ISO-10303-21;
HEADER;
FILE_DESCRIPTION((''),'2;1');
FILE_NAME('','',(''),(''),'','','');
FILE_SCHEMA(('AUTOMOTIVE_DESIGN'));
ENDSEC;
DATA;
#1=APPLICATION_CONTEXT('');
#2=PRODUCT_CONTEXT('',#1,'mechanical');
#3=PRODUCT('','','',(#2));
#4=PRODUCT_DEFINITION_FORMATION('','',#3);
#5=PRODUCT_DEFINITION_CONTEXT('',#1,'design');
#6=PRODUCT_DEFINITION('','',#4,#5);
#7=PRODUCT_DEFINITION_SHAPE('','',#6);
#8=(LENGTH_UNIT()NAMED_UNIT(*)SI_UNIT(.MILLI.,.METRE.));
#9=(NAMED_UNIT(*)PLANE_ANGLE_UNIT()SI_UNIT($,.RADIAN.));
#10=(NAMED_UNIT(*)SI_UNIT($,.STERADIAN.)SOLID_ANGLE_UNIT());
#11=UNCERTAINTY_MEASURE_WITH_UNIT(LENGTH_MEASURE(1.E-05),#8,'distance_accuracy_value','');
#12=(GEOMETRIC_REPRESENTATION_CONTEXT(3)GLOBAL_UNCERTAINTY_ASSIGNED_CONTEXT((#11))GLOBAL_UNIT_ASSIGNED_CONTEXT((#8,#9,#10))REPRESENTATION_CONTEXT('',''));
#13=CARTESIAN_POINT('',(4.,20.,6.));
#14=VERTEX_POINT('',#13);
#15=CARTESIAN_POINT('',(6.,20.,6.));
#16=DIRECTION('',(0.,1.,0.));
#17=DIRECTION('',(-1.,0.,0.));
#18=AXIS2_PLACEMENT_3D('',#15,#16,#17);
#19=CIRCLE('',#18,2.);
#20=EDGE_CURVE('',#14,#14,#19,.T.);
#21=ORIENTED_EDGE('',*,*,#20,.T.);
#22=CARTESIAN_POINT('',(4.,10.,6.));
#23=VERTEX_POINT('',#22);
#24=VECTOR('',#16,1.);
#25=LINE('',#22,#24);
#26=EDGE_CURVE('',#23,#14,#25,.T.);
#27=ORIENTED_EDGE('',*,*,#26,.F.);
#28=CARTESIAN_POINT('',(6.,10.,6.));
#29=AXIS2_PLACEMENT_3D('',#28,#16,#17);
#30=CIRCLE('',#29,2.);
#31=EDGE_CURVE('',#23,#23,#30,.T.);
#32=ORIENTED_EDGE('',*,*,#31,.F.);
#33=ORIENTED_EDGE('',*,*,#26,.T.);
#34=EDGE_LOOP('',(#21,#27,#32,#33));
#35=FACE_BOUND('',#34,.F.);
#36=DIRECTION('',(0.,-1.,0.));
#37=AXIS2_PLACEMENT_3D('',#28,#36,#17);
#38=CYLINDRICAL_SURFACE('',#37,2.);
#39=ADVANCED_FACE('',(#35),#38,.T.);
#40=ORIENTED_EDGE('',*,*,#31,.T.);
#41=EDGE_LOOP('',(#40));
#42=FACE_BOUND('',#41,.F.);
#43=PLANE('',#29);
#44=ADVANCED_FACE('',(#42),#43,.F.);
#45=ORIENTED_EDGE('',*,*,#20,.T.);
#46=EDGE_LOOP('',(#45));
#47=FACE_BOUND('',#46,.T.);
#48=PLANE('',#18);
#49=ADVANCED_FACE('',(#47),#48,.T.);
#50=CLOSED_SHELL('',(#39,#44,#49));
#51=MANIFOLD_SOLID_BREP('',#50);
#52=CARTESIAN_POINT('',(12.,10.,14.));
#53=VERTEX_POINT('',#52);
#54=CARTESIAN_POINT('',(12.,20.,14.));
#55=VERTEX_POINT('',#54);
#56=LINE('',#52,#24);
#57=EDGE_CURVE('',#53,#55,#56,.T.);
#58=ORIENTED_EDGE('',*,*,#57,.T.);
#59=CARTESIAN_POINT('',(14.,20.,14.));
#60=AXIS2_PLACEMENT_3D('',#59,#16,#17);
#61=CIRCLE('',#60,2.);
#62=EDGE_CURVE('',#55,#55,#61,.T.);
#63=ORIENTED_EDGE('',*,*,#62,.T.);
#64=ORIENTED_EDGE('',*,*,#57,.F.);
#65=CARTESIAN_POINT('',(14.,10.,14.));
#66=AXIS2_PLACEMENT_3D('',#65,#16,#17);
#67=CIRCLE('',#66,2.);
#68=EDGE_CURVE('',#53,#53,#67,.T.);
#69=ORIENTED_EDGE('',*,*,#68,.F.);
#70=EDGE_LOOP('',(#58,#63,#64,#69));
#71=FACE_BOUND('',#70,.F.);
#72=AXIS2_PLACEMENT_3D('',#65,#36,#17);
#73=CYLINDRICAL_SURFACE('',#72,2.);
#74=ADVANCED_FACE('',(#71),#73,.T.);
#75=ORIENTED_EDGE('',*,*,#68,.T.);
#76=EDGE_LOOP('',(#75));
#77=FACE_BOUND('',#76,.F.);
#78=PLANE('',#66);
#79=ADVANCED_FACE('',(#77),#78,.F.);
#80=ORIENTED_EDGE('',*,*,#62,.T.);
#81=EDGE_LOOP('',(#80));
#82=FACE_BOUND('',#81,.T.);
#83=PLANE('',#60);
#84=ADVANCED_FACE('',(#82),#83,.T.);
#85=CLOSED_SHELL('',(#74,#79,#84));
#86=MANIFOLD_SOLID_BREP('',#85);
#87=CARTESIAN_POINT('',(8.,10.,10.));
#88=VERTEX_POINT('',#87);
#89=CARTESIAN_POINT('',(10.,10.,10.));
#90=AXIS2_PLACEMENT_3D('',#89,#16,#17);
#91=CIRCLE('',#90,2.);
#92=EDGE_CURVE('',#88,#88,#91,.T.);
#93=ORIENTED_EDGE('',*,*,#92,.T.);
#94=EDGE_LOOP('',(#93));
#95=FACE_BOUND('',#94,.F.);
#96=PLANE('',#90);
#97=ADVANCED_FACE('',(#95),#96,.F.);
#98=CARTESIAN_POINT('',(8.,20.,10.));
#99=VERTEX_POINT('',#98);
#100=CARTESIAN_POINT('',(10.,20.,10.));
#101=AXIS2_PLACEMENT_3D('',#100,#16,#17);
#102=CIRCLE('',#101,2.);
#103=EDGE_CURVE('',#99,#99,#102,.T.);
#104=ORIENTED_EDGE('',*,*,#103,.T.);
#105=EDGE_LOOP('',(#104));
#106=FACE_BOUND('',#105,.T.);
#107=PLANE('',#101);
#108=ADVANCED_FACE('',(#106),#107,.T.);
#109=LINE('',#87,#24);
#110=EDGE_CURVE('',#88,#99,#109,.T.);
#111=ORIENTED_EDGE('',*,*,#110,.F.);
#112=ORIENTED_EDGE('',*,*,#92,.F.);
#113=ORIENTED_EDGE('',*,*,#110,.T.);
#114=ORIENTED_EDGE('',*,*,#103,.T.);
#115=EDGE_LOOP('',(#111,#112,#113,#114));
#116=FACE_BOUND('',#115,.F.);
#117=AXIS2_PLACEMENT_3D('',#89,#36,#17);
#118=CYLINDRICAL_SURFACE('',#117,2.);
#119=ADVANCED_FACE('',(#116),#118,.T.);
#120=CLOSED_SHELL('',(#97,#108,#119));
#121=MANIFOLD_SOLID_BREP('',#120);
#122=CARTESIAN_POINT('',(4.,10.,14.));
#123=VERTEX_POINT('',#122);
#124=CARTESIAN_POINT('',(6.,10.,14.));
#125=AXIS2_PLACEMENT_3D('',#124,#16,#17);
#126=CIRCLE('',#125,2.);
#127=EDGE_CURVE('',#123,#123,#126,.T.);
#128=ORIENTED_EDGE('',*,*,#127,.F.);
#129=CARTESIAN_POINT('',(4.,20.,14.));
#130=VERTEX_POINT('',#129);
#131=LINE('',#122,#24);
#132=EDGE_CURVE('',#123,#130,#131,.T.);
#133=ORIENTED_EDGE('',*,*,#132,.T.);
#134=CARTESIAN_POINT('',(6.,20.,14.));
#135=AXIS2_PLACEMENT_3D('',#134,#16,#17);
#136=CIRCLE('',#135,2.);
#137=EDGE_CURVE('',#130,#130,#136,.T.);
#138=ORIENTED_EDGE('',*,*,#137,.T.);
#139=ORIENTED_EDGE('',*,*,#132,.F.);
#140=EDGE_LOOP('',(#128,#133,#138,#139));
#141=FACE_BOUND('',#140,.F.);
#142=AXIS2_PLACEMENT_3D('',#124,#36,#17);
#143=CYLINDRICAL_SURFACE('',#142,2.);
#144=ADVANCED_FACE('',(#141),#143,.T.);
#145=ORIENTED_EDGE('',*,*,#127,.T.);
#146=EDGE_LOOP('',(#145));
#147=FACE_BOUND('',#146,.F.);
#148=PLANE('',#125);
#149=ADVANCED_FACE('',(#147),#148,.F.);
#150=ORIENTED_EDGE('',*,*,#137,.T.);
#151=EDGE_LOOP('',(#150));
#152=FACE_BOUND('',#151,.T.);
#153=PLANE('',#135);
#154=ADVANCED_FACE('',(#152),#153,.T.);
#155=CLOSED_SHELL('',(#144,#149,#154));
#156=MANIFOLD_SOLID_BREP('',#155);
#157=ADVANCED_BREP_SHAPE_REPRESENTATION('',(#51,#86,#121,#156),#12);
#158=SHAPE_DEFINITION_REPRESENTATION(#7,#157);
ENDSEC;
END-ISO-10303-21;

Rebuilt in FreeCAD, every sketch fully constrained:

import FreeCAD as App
import Part
import Sketcher

doc = App.newDocument("Part")
body = doc.addObject("PartDesign::Body", "Body")

# Sketch on XZ plane
sketch1 = body.newObject("Sketcher::SketchObject", "Sketch")
sketch1.AttachmentSupport = (doc.getObject("XZ_Plane"), [""])
sketch1.MapMode = "FlatFace"
sketch1.AttachmentOffset = App.Placement(App.Vector(0, 0, -10), App.Rotation())
sketch1.addGeometry(Part.Circle(App.Vector(14, 14, 0), App.Vector(0, 0, 1), 2), False)
sketch1.addConstraint([
    Sketcher.Constraint("Diameter", 0, 4.0),
    Sketcher.Constraint("DistanceX", -1, 1, 0, 3, 14.0),
    Sketcher.Constraint("DistanceY", -1, 1, 0, 3, 14.0),
])
pad1 = body.newObject("PartDesign::Pad", "Pad")
pad1.Profile = sketch1
pad1.Length = 10
pad1.Reversed = True
body2 = doc.addObject("PartDesign::Body", "Body001")

# Sketch on XZ plane
sketch2 = body2.newObject("Sketcher::SketchObject", "Sketch001")
sketch2.AttachmentSupport = (doc.getObject("XZ_Plane001"), [""])
sketch2.MapMode = "FlatFace"
sketch2.AttachmentOffset = App.Placement(App.Vector(0, 0, -10), App.Rotation())
sketch2.addGeometry(Part.Circle(App.Vector(6, 14, 0), App.Vector(0, 0, 1), 2), False)
sketch2.addConstraint([
    Sketcher.Constraint("Diameter", 0, 4.0),
    Sketcher.Constraint("DistanceX", -1, 1, 0, 3, 6.0),
    Sketcher.Constraint("DistanceY", -1, 1, 0, 3, 14.0),
])
pad2 = body2.newObject("PartDesign::Pad", "Pad001")
pad2.Profile = sketch2
pad2.Length = 10
pad2.Reversed = True
body3 = doc.addObject("PartDesign::Body", "Body002")

# Sketch on XZ plane
sketch3 = body3.newObject("Sketcher::SketchObject", "Sketch002")
sketch3.AttachmentSupport = (doc.getObject("XZ_Plane002"), [""])
sketch3.MapMode = "FlatFace"
sketch3.AttachmentOffset = App.Placement(App.Vector(0, 0, -10), App.Rotation())
sketch3.addGeometry(Part.Circle(App.Vector(6, 6, 0), App.Vector(0, 0, 1), 2), False)
sketch3.addConstraint([
    Sketcher.Constraint("Diameter", 0, 4.0),
    Sketcher.Constraint("DistanceX", -1, 1, 0, 3, 6.0),
    Sketcher.Constraint("DistanceY", -1, 1, 0, 3, 6.0),
])
pad3 = body3.newObject("PartDesign::Pad", "Pad002")
pad3.Profile = sketch3
pad3.Length = 10
pad3.Reversed = True
body4 = doc.addObject("PartDesign::Body", "Body003")
body4.AllowCompound = True

# Sketch on XZ plane
sketch4 = body4.newObject("Sketcher::SketchObject", "Sketch003")
sketch4.AttachmentSupport = (doc.getObject("XZ_Plane003"), [""])
sketch4.MapMode = "FlatFace"
sketch4.AttachmentOffset = App.Placement(App.Vector(0, 0, -10), App.Rotation())
sketch4.addGeometry(Part.Circle(App.Vector(10, 10, 0), App.Vector(0, 0, 1), 2), False)
sketch4.addConstraint([
    Sketcher.Constraint("Diameter", 0, 4.0),
    Sketcher.Constraint("DistanceX", -1, 1, 0, 3, 10.0),
    Sketcher.Constraint("DistanceY", -1, 1, 0, 3, 10.0),
])
pad4 = body4.newObject("PartDesign::Pad", "Pad003")
pad4.Profile = sketch4
pad4.Length = 10
pad4.Reversed = True
doc.recompute()

boolean = body4.newObject("PartDesign::Boolean", "Boolean")
boolean.Type = "Fuse"
boolean.addObjects([body3])
doc.recompute()

boolean2 = body4.newObject("PartDesign::Boolean", "Boolean001")
boolean2.Type = "Fuse"
boolean2.addObjects([body2])
doc.recompute()

boolean3 = body4.newObject("PartDesign::Boolean", "Boolean002")
boolean3.Type = "Fuse"
boolean3.addObjects([body])

doc.recompute()
